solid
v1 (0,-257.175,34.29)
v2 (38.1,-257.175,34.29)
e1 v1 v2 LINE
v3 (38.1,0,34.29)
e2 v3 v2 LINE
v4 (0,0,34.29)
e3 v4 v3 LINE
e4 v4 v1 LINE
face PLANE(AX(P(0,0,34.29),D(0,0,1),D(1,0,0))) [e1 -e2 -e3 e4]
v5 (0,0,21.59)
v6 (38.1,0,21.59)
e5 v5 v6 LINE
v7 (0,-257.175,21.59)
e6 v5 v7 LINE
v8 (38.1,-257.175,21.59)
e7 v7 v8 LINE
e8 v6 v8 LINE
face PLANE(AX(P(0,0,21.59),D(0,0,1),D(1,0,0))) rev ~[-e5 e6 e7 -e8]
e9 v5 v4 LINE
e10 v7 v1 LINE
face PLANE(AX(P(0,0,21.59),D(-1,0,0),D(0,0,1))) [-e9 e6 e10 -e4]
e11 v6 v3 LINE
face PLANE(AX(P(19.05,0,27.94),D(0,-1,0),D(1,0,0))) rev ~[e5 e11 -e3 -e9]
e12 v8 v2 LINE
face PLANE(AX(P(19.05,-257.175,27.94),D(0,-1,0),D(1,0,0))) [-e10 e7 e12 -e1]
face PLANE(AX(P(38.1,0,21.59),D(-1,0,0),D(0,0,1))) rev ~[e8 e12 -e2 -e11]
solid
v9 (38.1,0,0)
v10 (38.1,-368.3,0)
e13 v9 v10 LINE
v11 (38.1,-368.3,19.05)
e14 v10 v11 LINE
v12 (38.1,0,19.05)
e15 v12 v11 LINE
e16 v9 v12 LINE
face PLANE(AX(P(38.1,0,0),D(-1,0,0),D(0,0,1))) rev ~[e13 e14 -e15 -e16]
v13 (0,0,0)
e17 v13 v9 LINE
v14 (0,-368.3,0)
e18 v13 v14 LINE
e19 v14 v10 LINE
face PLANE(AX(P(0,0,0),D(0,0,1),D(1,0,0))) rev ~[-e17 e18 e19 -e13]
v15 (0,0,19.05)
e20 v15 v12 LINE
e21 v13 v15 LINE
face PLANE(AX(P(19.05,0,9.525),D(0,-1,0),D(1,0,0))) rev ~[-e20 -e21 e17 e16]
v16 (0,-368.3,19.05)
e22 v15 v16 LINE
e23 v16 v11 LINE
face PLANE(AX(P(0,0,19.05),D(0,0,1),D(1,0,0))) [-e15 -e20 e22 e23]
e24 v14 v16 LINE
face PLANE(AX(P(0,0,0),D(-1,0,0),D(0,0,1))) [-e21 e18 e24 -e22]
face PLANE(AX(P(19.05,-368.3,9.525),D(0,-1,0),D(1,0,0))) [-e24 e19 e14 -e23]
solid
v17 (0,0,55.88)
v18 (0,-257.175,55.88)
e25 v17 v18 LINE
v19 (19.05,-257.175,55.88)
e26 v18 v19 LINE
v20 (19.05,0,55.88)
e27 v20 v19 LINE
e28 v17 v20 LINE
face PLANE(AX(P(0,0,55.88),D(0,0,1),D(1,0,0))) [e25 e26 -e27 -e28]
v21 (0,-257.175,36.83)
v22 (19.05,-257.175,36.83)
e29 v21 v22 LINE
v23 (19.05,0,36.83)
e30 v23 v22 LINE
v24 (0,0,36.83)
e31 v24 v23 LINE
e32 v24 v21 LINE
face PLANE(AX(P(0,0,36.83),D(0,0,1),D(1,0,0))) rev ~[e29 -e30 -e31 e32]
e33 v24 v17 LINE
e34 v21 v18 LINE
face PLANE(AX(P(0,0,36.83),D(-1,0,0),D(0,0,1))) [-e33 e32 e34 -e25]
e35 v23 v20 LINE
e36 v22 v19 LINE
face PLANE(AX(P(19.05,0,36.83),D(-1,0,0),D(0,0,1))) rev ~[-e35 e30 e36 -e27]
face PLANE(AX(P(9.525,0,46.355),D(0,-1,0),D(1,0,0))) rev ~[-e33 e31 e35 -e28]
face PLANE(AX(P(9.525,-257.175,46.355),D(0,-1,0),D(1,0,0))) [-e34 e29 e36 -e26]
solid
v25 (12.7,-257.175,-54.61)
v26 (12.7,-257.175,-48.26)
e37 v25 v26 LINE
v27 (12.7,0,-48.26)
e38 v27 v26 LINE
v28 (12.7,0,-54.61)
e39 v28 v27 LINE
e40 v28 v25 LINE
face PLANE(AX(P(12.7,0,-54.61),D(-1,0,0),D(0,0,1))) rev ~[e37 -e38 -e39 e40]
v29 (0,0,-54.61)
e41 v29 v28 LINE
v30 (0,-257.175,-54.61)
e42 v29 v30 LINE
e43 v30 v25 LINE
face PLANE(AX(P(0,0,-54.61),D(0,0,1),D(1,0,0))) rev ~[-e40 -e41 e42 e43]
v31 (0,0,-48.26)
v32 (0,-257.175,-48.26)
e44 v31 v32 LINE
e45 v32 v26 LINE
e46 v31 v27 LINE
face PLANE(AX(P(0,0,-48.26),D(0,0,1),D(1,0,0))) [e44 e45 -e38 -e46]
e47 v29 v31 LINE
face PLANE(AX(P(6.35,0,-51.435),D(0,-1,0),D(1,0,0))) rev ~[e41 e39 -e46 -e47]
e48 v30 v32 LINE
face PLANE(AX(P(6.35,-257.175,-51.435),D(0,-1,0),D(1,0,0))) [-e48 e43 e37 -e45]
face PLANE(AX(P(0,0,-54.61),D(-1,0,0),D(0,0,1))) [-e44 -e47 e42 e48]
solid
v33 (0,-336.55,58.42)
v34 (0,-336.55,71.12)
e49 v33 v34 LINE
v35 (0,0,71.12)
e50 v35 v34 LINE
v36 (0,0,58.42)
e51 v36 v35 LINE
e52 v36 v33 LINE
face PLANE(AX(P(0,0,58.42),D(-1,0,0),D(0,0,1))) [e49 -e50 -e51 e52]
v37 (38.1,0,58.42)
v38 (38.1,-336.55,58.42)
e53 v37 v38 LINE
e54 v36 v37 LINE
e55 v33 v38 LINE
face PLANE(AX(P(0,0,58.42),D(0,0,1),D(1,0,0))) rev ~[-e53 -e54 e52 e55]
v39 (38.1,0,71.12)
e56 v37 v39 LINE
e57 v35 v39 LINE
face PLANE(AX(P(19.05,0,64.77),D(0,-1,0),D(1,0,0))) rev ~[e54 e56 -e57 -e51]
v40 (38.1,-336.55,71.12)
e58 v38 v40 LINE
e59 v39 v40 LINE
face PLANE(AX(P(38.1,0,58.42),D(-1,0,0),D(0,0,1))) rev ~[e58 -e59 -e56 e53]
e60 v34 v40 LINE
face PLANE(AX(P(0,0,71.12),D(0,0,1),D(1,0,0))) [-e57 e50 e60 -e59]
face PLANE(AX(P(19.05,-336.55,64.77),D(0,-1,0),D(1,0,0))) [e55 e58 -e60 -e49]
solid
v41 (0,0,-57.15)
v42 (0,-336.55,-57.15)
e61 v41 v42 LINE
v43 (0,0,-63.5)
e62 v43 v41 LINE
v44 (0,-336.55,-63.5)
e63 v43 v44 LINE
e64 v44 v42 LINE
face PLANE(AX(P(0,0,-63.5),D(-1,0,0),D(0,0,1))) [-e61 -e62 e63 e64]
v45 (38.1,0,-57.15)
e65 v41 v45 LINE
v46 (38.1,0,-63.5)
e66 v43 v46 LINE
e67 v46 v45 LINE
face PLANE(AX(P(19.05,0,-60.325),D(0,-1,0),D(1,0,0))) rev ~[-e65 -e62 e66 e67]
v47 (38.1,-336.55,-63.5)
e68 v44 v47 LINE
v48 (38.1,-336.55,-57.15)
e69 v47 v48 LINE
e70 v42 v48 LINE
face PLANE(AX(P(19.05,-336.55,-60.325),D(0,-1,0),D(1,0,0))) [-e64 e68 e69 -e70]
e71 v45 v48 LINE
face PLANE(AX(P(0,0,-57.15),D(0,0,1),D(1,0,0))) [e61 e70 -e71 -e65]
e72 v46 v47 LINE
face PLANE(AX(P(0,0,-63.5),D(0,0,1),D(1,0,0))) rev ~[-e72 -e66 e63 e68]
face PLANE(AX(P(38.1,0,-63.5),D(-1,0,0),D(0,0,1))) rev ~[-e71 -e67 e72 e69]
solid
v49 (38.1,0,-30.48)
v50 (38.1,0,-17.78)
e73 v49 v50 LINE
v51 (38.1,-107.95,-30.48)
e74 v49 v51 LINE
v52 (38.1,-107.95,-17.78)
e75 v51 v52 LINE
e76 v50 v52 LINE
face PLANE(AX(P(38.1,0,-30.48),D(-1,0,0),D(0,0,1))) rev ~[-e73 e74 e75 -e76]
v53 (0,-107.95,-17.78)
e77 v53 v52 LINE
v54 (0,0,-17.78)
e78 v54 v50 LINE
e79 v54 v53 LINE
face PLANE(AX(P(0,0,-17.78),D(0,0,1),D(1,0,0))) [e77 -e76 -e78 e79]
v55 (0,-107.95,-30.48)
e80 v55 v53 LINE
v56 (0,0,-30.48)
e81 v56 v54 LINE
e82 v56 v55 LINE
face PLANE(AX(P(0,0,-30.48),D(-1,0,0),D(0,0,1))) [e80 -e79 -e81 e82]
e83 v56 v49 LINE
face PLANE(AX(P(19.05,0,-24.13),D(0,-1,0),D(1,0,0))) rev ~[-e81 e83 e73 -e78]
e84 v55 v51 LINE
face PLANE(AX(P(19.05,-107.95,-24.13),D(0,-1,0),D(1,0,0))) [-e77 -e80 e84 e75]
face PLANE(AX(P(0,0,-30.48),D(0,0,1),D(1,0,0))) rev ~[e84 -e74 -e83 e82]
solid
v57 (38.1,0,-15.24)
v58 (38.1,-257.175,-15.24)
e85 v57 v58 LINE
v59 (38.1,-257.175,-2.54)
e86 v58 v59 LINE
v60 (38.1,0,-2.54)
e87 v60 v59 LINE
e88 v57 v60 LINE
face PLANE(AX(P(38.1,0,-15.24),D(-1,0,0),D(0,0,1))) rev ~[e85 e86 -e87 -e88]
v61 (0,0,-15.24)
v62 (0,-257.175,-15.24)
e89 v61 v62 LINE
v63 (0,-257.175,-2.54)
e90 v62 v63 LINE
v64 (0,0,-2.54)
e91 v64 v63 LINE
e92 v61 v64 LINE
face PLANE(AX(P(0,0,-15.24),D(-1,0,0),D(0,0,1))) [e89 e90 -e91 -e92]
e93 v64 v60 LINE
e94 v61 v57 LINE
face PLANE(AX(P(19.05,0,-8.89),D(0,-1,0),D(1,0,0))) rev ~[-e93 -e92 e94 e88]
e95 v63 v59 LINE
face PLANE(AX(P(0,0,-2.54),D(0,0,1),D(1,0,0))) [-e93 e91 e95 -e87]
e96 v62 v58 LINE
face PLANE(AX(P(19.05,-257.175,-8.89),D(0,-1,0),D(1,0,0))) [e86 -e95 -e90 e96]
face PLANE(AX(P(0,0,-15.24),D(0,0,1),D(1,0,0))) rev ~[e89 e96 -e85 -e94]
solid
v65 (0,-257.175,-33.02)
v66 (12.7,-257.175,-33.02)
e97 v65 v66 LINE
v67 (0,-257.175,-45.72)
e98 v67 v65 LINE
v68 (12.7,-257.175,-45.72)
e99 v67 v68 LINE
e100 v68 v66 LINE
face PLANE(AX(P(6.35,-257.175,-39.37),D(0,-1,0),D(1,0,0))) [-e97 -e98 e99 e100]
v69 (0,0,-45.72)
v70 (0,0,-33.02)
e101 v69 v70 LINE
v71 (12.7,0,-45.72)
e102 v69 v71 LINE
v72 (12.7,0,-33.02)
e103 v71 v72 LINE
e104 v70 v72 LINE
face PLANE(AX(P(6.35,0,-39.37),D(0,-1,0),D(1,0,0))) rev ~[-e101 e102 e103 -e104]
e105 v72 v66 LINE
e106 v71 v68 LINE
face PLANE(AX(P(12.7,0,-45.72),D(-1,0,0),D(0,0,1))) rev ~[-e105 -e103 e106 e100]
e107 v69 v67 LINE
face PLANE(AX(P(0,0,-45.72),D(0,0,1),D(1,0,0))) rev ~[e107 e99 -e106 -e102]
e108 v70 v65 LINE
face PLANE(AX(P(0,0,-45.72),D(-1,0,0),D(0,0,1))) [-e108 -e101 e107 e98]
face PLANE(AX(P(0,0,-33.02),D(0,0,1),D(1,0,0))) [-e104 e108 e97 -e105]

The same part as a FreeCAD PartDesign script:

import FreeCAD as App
import Part
import Sketcher
from FreeCAD import Vector
Q = App.Units.Quantity

doc = App.newDocument("Part")
body = doc.addObject("PartDesign::Body", "Body")

# Sketch on XZ plane
sketch1 = doc.addObject("Sketcher::SketchObject", "Sketch")
body.addObject(sketch1)
sketch1.AttachmentSupport = (doc.XZ_Plane, [""])
sketch1.MapMode = "FlatFace"
sketch1.addGeometry(Part.LineSegment(Vector(0, 19, 0), Vector(0, 0, 0)), False)
sketch1.addGeometry(Part.LineSegment(Vector(0, 0, 0), Vector(38, 0, 0)), False)
sketch1.addGeometry(Part.LineSegment(Vector(38, 0, 0), Vector(38, 19, 0)), False)
sketch1.addGeometry(Part.LineSegment(Vector(38, 19, 0), Vector(0, 19, 0)), False)
sketch1.addConstraint(Sketcher.Constraint("Coincident", 0, 2, 1, 1))
sketch1.addConstraint(Sketcher.Constraint("Coincident", 1, 2, 2, 1))
sketch1.addConstraint(Sketcher.Constraint("Coincident", 2, 2, 3, 1))
sketch1.addConstraint(Sketcher.Constraint("Coincident", 3, 2, 0, 1))
sketch1.addConstraint(Sketcher.Constraint("Vertical", 0))
sketch1.addConstraint(Sketcher.Constraint("Horizontal", 1))
sketch1.addConstraint(Sketcher.Constraint("Vertical", 2))
sketch1.addConstraint(Sketcher.Constraint("Horizontal", 3))
sketch1.addConstraint(Sketcher.Constraint("Coincident", 0, 2, -1, 1))
sketch1.addConstraint(Sketcher.Constraint("DistanceX", 1, 1, 1, 2, Q("1.5 in")))
sketch1.addConstraint(Sketcher.Constraint("DistanceY", 0, 2, 0, 1, Q("0.75 in")))
pad1 = doc.addObject("PartDesign::Pad", "Pad")
body.addObject(pad1)
pad1.Profile = sketch1
pad1.Length = Q("14.5 in")
body2 = doc.addObject("PartDesign::Body", "Body001")

# Sketch on XZ plane
sketch2 = doc.addObject("Sketcher::SketchObject", "Sketch001")
body2.addObject(sketch2)
sketch2.AttachmentSupport = (doc.getObject("XZ_Plane001"), [""])
sketch2.MapMode = "FlatFace"
sketch2.addGeometry(Part.LineSegment(Vector(0, 34, 0), Vector(0, 22, 0)), False)
sketch2.addGeometry(Part.LineSegment(Vector(0, 22, 0), Vector(38, 22, 0)), False)
sketch2.addGeometry(Part.LineSegment(Vector(38, 22, 0), Vector(38, 34, 0)), False)
sketch2.addGeometry(Part.LineSegment(Vector(38, 34, 0), Vector(0, 34, 0)), False)
sketch2.addConstraint(Sketcher.Constraint("Coincident", 0, 2, 1, 1))
sketch2.addConstraint(Sketcher.Constraint("Coincident", 1, 2, 2, 1))
sketch2.addConstraint(Sketcher.Constraint("Coincident", 2, 2, 3, 1))
sketch2.addConstraint(Sketcher.Constraint("Coincident", 3, 2, 0, 1))
sketch2.addConstraint(Sketcher.Constraint("Vertical", 0))
sketch2.addConstraint(Sketcher.Constraint("Horizontal", 1))
sketch2.addConstraint(Sketcher.Constraint("Vertical", 2))
sketch2.addConstraint(Sketcher.Constraint("Horizontal", 3))
sketch2.addConstraint(Sketcher.Constraint("PointOnObject", 0, 2, -2))
sketch2.addConstraint(Sketcher.Constraint("DistanceX", 1, 1, 1, 2, Q("1.5 in")))
sketch2.addConstraint(Sketcher.Constraint("DistanceY", 0, 2, 0, 1, Q("0.5 in")))
sketch2.addConstraint(Sketcher.Constraint("DistanceY", -1, 1, 0, 2, Q("0.85 in")))
pad2 = doc.addObject("PartDesign::Pad", "Pad001")
body2.addObject(pad2)
pad2.Profile = sketch2
pad2.Length = Q("10.125 in")
body3 = doc.addObject("PartDesign::Body", "Body002")

# Sketch on XZ plane
sketch3 = doc.addObject("Sketcher::SketchObject", "Sketch002")
body3.addObject(sketch3)
sketch3.AttachmentSupport = (doc.getObject("XZ_Plane002"), [""])
sketch3.MapMode = "FlatFace"
sketch3.addGeometry(Part.LineSegment(Vector(0, 56, 0), Vector(0, 37, 0)), False)
sketch3.addGeometry(Part.LineSegment(Vector(0, 37, 0), Vector(19, 37, 0)), False)
sketch3.addGeometry(Part.LineSegment(Vector(19, 37, 0), Vector(19, 56, 0)), False)
sketch3.addGeometry(Part.LineSegment(Vector(19, 56, 0), Vector(0, 56, 0)), False)
sketch3.addConstraint(Sketcher.Constraint("Coincident", 0, 2, 1, 1))
sketch3.addConstraint(Sketcher.Constraint("Coincident", 1, 2, 2, 1))
sketch3.addConstraint(Sketcher.Constraint("Coincident", 2, 2, 3, 1))
sketch3.addConstraint(Sketcher.Constraint("Coincident", 3, 2, 0, 1))
sketch3.addConstraint(Sketcher.Constraint("Vertical", 0))
sketch3.addConstraint(Sketcher.Constraint("Horizontal", 1))
sketch3.addConstraint(Sketcher.Constraint("Vertical", 2))
sketch3.addConstraint(Sketcher.Constraint("Horizontal", 3))
sketch3.addConstraint(Sketcher.Constraint("PointOnObject", 0, 2, -2))
sketch3.addConstraint(Sketcher.Constraint("Equal", 3, 0))
sketch3.addConstraint(Sketcher.Constraint("DistanceX", 1, 1, 1, 2, Q("0.75 in")))
sketch3.addConstraint(Sketcher.Constraint("DistanceY", -1, 1, 2, 2, Q("2.2 in")))
pad3 = doc.addObject("PartDesign::Pad", "Pad002")
body3.addObject(pad3)
pad3.Profile = sketch3
pad3.Length = Q("10.125 in")
body4 = doc.addObject("PartDesign::Body", "Body003")

# Sketch on XZ plane
sketch4 = doc.addObject("Sketcher::SketchObject", "Sketch003")
body4.addObject(sketch4)
sketch4.AttachmentSupport = (doc.getObject("XZ_Plane003"), [""])
sketch4.MapMode = "FlatFace"
sketch4.addGeometry(Part.LineSegment(Vector(0, 71, 0), Vector(0, 58, 0)), False)
sketch4.addGeometry(Part.LineSegment(Vector(0, 58, 0), Vector(38, 58, 0)), False)
sketch4.addGeometry(Part.LineSegment(Vector(38, 58, 0), Vector(38, 71, 0)), False)
sketch4.addGeometry(Part.LineSegment(Vector(38, 71, 0), Vector(0, 71, 0)), False)
sketch4.addConstraint(Sketcher.Constraint("Coincident", 0, 2, 1, 1))
sketch4.addConstraint(Sketcher.Constraint("Coincident", 1, 2, 2, 1))
sketch4.addConstraint(Sketcher.Constraint("Coincident", 2, 2, 3, 1))
sketch4.addConstraint(Sketcher.Constraint("Coincident", 3, 2, 0, 1))
sketch4.addConstraint(Sketcher.Constraint("Vertical", 0))
sketch4.addConstraint(Sketcher.Constraint("Horizontal", 1))
sketch4.addConstraint(Sketcher.Constraint("Vertical", 2))
sketch4.addConstraint(Sketcher.Constraint("Horizontal", 3))
sketch4.addConstraint(Sketcher.Constraint("PointOnObject", 0, 2, -2))
sketch4.addConstraint(Sketcher.Constraint("DistanceX", 1, 1, 1, 2, Q("1.5 in")))
sketch4.addConstraint(Sketcher.Constraint("DistanceY", 0, 2, 0, 1, Q("0.5 in")))
sketch4.addConstraint(Sketcher.Constraint("DistanceY", -1, 1, 0, 2, Q("2.3 in")))
pad4 = doc.addObject("PartDesign::Pad", "Pad003")
body4.addObject(pad4)
pad4.Profile = sketch4
pad4.Length = Q("13.25 in")
body5 = doc.addObject("PartDesign::Body", "Body004")

# Sketch on XZ plane
sketch5 = doc.addObject("Sketcher::SketchObject", "Sketch004")
body5.addObject(sketch5)
sketch5.AttachmentSupport = (doc.getObject("XZ_Plane004"), [""])
sketch5.MapMode = "FlatFace"
sketch5.addGeometry(Part.LineSegment(Vector(0, -3, 0), Vector(0, -15, 0)), False)
sketch5.addGeometry(Part.LineSegment(Vector(0, -15, 0), Vector(38, -15, 0)), False)
sketch5.addGeometry(Part.LineSegment(Vector(38, -15, 0), Vector(38, -3, 0)), False)
sketch5.addGeometry(Part.LineSegment(Vector(38, -3, 0), Vector(0, -3, 0)), False)
sketch5.addConstraint(Sketcher.Constraint("Coincident", 0, 2, 1, 1))
sketch5.addConstraint(Sketcher.Constraint("Coincident", 1, 2, 2, 1))
sketch5.addConstraint(Sketcher.Constraint("Coincident", 2, 2, 3, 1))
sketch5.addConstraint(Sketcher.Constraint("Coincident", 3, 2, 0, 1))
sketch5.addConstraint(Sketcher.Constraint("Vertical", 0))
sketch5.addConstraint(Sketcher.Constraint("Horizontal", 1))
sketch5.addConstraint(Sketcher.Constraint("Vertical", 2))
sketch5.addConstraint(Sketcher.Constraint("Horizontal", 3))
sketch5.addConstraint(Sketcher.Constraint("PointOnObject", 0, 2, -2))
sketch5.addConstraint(Sketcher.Constraint("DistanceX", 1, 1, 1, 2, Q("1.5 in")))
sketch5.addConstraint(Sketcher.Constraint("DistanceY", 0, 2, 0, 1, Q("0.5 in")))
sketch5.addConstraint(Sketcher.Constraint("DistanceY", 0, 2, -1, 1, Q("0.6 in")))
pad5 = doc.addObject("PartDesign::Pad", "Pad004")
body5.addObject(pad5)
pad5.Profile = sketch5
pad5.Length = Q("10.125 in")
body6 = doc.addObject("PartDesign::Body", "Body005")

# Sketch on XZ plane
sketch6 = doc.addObject("Sketcher::SketchObject", "Sketch005")
body6.addObject(sketch6)
sketch6.AttachmentSupport = (doc.getObject("XZ_Plane005"), [""])
sketch6.MapMode = "FlatFace"
sketch6.addGeometry(Part.LineSegment(Vector(0, -18, 0), Vector(0, -30, 0)), False)
sketch6.addGeometry(Part.LineSegment(Vector(0, -30, 0), Vector(38, -30, 0)), False)
sketch6.addGeometry(Part.LineSegment(Vector(38, -30, 0), Vector(38, -18, 0)), False)
sketch6.addGeometry(Part.LineSegment(Vector(38, -18, 0), Vector(0, -18, 0)), False)
sketch6.addConstraint(Sketcher.Constraint("Coincident", 0, 2, 1, 1))
sketch6.addConstraint(Sketcher.Constraint("Coincident", 1, 2, 2, 1))
sketch6.addConstraint(Sketcher.Constraint("Coincident", 2, 2, 3, 1))
sketch6.addConstraint(Sketcher.Constraint("Coincident", 3, 2, 0, 1))
sketch6.addConstraint(Sketcher.Constraint("Vertical", 0))
sketch6.addConstraint(Sketcher.Constraint("Horizontal", 1))
sketch6.addConstraint(Sketcher.Constraint("Vertical", 2))
sketch6.addConstraint(Sketcher.Constraint("Horizontal", 3))
sketch6.addConstraint(Sketcher.Constraint("PointOnObject", 0, 2, -2))
sketch6.addConstraint(Sketcher.Constraint("DistanceX", 1, 1, 1, 2, Q("1.5 in")))
sketch6.addConstraint(Sketcher.Constraint("DistanceY", 0, 2, 0, 1, Q("0.5 in")))
sketch6.addConstraint(Sketcher.Constraint("DistanceY", 0, 2, -1, 1, Q("1.2 in")))
pad6 = doc.addObject("PartDesign::Pad", "Pad005")
body6.addObject(pad6)
pad6.Profile = sketch6
pad6.Length = Q("4.25 in")
body7 = doc.addObject("PartDesign::Body", "Body006")

# Sketch on XZ plane
sketch7 = doc.addObject("Sketcher::SketchObject", "Sketch006")
body7.addObject(sketch7)
sketch7.AttachmentSupport = (doc.getObject("XZ_Plane006"), [""])
sketch7.MapMode = "FlatFace"
sketch7.addGeometry(Part.LineSegment(Vector(0, -33, 0), Vector(0, -46, 0)), False)
sketch7.addGeometry(Part.LineSegment(Vector(0, -46, 0), Vector(13, -46, 0)), False)
sketch7.addGeometry(Part.LineSegment(Vector(13, -46, 0), Vector(13, -33, 0)), False)
sketch7.addGeometry(Part.LineSegment(Vector(13, -33, 0), Vector(0, -33, 0)), False)
sketch7.addConstraint(Sketcher.Constraint("Coincident", 0, 2, 1, 1))
sketch7.addConstraint(Sketcher.Constraint("Coincident", 1, 2, 2, 1))
sketch7.addConstraint(Sketcher.Constraint("Coincident", 2, 2, 3, 1))
sketch7.addConstraint(Sketcher.Constraint("Coincident", 3, 2, 0, 1))
sketch7.addConstraint(Sketcher.Constraint("Vertical", 0))
sketch7.addConstraint(Sketcher.Constraint("Horizontal", 1))
sketch7.addConstraint(Sketcher.Constraint("Vertical", 2))
sketch7.addConstraint(Sketcher.Constraint("Horizontal", 3))
sketch7.addConstraint(Sketcher.Constraint("PointOnObject", 0, 2, -2))
sketch7.addConstraint(Sketcher.Constraint("Equal", 3, 0))
sketch7.addConstraint(Sketcher.Constraint("DistanceX", 1, 1, 1, 2, Q("0.5 in")))
sketch7.addConstraint(Sketcher.Constraint("DistanceY", 0, 2, -1, 1, Q("1.8 in")))
pad7 = doc.addObject("PartDesign::Pad", "Pad006")
body7.addObject(pad7)
pad7.Profile = sketch7
pad7.Length = Q("10.125 in")
body8 = doc.addObject("PartDesign::Body", "Body007")

# Sketch on XZ plane
sketch8 = doc.addObject("Sketcher::SketchObject", "Sketch007")
body8.addObject(sketch8)
sketch8.AttachmentSupport = (doc.getObject("XZ_Plane007"), [""])
sketch8.MapMode = "FlatFace"
sketch8.addGeometry(Part.LineSegment(Vector(0, -48, 0), Vector(0, -55, 0)), False)
sketch8.addGeometry(Part.LineSegment(Vector(0, -55, 0), Vector(13, -55, 0)), False)
sketch8.addGeometry(Part.LineSegment(Vector(13, -55, 0), Vector(13, -48, 0)), False)
sketch8.addGeometry(Part.LineSegment(Vector(13, -48, 0), Vector(0, -48, 0)), False)
sketch8.addConstraint(Sketcher.Constraint("Coincident", 0, 2, 1, 1))
sketch8.addConstraint(Sketcher.Constraint("Coincident", 1, 2, 2, 1))
sketch8.addConstraint(Sketcher.Constraint("Coincident", 2, 2, 3, 1))
sketch8.addConstraint(Sketcher.Constraint("Coincident", 3, 2, 0, 1))
sketch8.addConstraint(Sketcher.Constraint("Vertical", 0))
sketch8.addConstraint(Sketcher.Constraint("Horizontal", 1))
sketch8.addConstraint(Sketcher.Constraint("Vertical", 2))
sketch8.addConstraint(Sketcher.Constraint("Horizontal", 3))
sketch8.addConstraint(Sketcher.Constraint("PointOnObject", 0, 2, -2))
sketch8.addConstraint(Sketcher.Constraint("DistanceX", 1, 1, 1, 2, Q("0.5 in")))
sketch8.addConstraint(Sketcher.Constraint("DistanceY", 0, 2, 0, 1, Q("0.25 in")))
sketch8.addConstraint(Sketcher.Constraint("DistanceY", 2, 2, -1, 1, Q("1.9 in")))
pad8 = doc.addObject("PartDesign::Pad", "Pad007")
body8.addObject(pad8)
pad8.Profile = sketch8
pad8.Length = Q("10.125 in")
body9 = doc.addObject("PartDesign::Body", "Body008")

# Sketch on XZ plane
sketch9 = doc.addObject("Sketcher::SketchObject", "Sketch008")
body9.addObject(sketch9)
sketch9.AttachmentSupport = (doc.getObject("XZ_Plane008"), [""])
sketch9.MapMode = "FlatFace"
sketch9.addGeometry(Part.LineSegment(Vector(0, -57, 0), Vector(0, -64, 0)), False)
sketch9.addGeometry(Part.LineSegment(Vector(0, -64, 0), Vector(38, -64, 0)), False)
sketch9.addGeometry(Part.LineSegment(Vector(38, -64, 0), Vector(38, -57, 0)), False)
sketch9.addGeometry(Part.LineSegment(Vector(38, -57, 0), Vector(0, -57, 0)), False)
sketch9.addConstraint(Sketcher.Constraint("Coincident", 0, 2, 1, 1))
sketch9.addConstraint(Sketcher.Constraint("Coincident", 1, 2, 2, 1))
sketch9.addConstraint(Sketcher.Constraint("Coincident", 2, 2, 3, 1))
sketch9.addConstraint(Sketcher.Constraint("Coincident", 3, 2, 0, 1))
sketch9.addConstraint(Sketcher.Constraint("Vertical", 0))
sketch9.addConstraint(Sketcher.Constraint("Horizontal", 1))
sketch9.addConstraint(Sketcher.Constraint("Vertical", 2))
sketch9.addConstraint(Sketcher.Constraint("Horizontal", 3))
sketch9.addConstraint(Sketcher.Constraint("PointOnObject", 0, 2, -2))
sketch9.addConstraint(Sketcher.Constraint("DistanceX", 1, 1, 1, 2, Q("1.5 in")))
sketch9.addConstraint(Sketcher.Constraint("DistanceY", 0, 2, 0, 1, Q("0.25 in")))
sketch9.addConstraint(Sketcher.Constraint("DistanceY", 0, 2, -1, 1, Q("2.5 in")))
pad9 = doc.addObject("PartDesign::Pad", "Pad008")
body9.addObject(pad9)
pad9.Profile = sketch9
pad9.Length = Q("13.25 in")

doc.recompute()
